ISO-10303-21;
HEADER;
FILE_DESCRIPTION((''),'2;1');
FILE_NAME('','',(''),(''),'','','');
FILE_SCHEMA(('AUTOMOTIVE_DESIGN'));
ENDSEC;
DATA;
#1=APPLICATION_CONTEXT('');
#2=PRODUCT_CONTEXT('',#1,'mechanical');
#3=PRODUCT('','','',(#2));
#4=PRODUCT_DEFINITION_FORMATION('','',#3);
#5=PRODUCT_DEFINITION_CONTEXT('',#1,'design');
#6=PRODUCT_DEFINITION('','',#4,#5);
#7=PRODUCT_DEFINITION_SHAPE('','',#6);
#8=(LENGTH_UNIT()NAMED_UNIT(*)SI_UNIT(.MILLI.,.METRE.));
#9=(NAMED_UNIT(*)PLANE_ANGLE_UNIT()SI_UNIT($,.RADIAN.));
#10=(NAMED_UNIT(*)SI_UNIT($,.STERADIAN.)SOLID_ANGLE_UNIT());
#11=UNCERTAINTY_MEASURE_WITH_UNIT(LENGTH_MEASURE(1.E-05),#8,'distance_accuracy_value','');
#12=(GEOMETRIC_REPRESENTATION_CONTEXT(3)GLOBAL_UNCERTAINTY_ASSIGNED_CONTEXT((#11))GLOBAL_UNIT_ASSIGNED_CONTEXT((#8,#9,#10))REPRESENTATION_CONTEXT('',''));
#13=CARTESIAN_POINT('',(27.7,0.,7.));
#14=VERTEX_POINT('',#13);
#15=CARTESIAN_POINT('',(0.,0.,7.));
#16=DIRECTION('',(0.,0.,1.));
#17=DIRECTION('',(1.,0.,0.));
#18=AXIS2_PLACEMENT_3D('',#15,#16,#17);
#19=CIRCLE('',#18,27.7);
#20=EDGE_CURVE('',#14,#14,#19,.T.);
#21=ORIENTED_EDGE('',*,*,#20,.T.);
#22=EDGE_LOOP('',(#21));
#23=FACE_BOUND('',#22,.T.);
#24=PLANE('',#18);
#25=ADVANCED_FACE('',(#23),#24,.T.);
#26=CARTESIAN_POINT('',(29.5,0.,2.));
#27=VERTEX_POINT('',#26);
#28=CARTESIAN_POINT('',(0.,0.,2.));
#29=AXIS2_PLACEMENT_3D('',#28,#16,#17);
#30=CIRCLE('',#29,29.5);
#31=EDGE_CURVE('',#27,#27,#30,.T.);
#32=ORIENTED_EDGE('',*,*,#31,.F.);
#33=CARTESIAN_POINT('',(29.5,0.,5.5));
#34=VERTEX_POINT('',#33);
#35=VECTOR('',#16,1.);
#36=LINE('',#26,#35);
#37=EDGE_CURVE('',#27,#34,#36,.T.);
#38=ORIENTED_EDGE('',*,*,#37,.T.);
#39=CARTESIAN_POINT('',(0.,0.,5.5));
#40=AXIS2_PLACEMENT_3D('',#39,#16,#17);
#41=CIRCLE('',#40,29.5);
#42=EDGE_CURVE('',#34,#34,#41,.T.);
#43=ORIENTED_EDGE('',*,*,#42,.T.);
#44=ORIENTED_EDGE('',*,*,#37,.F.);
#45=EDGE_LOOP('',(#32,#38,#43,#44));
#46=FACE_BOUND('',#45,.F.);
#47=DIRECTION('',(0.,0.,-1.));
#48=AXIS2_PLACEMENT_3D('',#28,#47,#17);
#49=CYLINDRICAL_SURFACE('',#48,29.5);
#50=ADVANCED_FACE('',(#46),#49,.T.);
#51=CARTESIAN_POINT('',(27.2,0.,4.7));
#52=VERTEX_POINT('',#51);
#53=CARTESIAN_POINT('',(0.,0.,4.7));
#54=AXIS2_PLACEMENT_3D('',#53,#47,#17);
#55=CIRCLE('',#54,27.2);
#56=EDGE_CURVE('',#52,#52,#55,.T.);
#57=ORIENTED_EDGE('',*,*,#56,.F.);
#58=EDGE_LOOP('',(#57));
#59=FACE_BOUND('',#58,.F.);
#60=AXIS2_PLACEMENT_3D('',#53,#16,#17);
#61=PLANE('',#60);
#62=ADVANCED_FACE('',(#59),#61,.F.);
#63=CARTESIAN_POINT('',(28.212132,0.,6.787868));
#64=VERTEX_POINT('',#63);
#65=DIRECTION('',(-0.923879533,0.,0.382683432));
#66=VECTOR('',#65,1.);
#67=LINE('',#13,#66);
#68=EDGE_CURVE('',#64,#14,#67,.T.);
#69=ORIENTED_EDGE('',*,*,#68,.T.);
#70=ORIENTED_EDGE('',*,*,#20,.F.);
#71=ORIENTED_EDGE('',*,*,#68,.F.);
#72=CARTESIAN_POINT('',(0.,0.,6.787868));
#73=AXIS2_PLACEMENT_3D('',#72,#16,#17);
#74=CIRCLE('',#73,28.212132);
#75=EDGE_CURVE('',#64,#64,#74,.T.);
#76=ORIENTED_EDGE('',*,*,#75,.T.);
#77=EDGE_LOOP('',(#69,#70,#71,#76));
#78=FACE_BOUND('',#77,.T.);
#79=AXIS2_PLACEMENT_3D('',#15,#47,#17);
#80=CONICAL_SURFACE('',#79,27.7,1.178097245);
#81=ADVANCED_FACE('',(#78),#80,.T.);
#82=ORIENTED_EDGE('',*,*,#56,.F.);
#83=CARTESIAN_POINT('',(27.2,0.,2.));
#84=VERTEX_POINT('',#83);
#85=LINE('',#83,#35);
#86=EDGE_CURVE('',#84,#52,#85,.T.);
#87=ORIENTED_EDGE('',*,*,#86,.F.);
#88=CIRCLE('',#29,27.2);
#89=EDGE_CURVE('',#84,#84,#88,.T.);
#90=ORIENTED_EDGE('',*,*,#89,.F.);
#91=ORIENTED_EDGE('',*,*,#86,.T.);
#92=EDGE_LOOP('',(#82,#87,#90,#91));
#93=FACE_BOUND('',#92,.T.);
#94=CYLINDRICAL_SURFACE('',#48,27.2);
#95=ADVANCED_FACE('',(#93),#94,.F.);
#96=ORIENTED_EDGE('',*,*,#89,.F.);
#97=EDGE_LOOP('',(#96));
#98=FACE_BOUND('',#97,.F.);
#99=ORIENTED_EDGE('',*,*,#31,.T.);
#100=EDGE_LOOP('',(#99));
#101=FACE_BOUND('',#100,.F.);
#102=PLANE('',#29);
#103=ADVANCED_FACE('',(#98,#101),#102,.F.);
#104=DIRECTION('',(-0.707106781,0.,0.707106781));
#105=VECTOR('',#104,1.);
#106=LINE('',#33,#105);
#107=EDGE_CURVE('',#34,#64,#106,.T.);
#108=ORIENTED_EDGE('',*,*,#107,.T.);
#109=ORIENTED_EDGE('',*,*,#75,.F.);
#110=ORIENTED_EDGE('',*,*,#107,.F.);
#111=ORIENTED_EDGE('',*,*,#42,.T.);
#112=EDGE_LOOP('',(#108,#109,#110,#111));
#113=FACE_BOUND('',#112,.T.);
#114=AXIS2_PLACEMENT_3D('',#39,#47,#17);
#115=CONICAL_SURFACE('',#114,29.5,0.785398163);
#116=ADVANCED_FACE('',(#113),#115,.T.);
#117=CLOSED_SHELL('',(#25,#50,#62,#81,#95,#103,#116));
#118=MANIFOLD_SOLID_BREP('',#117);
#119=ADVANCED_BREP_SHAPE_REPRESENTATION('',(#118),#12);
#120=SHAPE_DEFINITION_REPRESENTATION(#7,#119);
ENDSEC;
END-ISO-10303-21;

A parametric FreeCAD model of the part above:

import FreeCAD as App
import Part
import Sketcher
from FreeCAD import Vector


def edges_at(feature, points):
    """Names of the edges that pass closest to the given points."""
    edges = feature.Shape.Edges
    near = lambda p: min(range(len(edges)), key=lambda i: edges[i].distToShape(Part.Vertex(*p))[0])
    return sorted({f"Edge{near(p) + 1}" for p in points})


def faces_at(feature, points):
    """Names of the faces that lie closest to the given points."""
    faces = feature.Shape.Faces
    near = lambda p: min(range(len(faces)), key=lambda i: faces[i].distToShape(Part.Vertex(*p))[0])
    return sorted({f"Face{near(p) + 1}" for p in points})

doc = App.newDocument("Part")
body = doc.addObject("PartDesign::Body", "Body")

# Sketch on XY plane
sketch1 = body.newObject("Sketcher::SketchObject", "Sketch")
sketch1.AttachmentSupport = (doc.getObject("XY_Plane"), [""])
sketch1.MapMode = "FlatFace"
sketch1.addGeometry(Part.Circle(Vector(0, 0, 0), Vector(0, 0, 1), 30), False)
sketch1.addConstraint(Sketcher.Constraint("Coincident", 0, 3, -1, 1))
sketch1.addConstraint(Sketcher.Constraint("Diameter", 0, 59.0))
pad1 = body.newObject("PartDesign::Pad", "Pad")
pad1.Profile = sketch1
pad1.Length = 5
doc.recompute()

thickness = body.newObject("PartDesign::Thickness", "Thickness")
thickness.Base = (pad1, faces_at(pad1, [(0, 0, 0)]))
thickness.Value = 2.3
thickness.Reversed = True
thickness.Join = "Arc"
doc.recompute()

chamfer = body.newObject("PartDesign::Chamfer", "Chamfer")
chamfer.Base = (thickness, edges_at(thickness, [(-29.5, 0, 5)]))
chamfer.Size = 1.5
doc.recompute()

chamfer2 = body.newObject("PartDesign::Chamfer", "Chamfer001")
chamfer2.Base = (chamfer, edges_at(chamfer, [(-28, 0, 5)]))
chamfer2.Size = 0.3
body2 = doc.addObject("PartDesign::Body", "Body001")
doc.recompute()

body.Placement = App.Placement(Vector(0, 0, 2), App.Rotation(Vector(0, 0, 1), 0))
boolean = body2.newObject("PartDesign::Boolean", "Boolean")
boolean.Type = "Fuse"
boolean.addObjects([body])

doc.recompute()
